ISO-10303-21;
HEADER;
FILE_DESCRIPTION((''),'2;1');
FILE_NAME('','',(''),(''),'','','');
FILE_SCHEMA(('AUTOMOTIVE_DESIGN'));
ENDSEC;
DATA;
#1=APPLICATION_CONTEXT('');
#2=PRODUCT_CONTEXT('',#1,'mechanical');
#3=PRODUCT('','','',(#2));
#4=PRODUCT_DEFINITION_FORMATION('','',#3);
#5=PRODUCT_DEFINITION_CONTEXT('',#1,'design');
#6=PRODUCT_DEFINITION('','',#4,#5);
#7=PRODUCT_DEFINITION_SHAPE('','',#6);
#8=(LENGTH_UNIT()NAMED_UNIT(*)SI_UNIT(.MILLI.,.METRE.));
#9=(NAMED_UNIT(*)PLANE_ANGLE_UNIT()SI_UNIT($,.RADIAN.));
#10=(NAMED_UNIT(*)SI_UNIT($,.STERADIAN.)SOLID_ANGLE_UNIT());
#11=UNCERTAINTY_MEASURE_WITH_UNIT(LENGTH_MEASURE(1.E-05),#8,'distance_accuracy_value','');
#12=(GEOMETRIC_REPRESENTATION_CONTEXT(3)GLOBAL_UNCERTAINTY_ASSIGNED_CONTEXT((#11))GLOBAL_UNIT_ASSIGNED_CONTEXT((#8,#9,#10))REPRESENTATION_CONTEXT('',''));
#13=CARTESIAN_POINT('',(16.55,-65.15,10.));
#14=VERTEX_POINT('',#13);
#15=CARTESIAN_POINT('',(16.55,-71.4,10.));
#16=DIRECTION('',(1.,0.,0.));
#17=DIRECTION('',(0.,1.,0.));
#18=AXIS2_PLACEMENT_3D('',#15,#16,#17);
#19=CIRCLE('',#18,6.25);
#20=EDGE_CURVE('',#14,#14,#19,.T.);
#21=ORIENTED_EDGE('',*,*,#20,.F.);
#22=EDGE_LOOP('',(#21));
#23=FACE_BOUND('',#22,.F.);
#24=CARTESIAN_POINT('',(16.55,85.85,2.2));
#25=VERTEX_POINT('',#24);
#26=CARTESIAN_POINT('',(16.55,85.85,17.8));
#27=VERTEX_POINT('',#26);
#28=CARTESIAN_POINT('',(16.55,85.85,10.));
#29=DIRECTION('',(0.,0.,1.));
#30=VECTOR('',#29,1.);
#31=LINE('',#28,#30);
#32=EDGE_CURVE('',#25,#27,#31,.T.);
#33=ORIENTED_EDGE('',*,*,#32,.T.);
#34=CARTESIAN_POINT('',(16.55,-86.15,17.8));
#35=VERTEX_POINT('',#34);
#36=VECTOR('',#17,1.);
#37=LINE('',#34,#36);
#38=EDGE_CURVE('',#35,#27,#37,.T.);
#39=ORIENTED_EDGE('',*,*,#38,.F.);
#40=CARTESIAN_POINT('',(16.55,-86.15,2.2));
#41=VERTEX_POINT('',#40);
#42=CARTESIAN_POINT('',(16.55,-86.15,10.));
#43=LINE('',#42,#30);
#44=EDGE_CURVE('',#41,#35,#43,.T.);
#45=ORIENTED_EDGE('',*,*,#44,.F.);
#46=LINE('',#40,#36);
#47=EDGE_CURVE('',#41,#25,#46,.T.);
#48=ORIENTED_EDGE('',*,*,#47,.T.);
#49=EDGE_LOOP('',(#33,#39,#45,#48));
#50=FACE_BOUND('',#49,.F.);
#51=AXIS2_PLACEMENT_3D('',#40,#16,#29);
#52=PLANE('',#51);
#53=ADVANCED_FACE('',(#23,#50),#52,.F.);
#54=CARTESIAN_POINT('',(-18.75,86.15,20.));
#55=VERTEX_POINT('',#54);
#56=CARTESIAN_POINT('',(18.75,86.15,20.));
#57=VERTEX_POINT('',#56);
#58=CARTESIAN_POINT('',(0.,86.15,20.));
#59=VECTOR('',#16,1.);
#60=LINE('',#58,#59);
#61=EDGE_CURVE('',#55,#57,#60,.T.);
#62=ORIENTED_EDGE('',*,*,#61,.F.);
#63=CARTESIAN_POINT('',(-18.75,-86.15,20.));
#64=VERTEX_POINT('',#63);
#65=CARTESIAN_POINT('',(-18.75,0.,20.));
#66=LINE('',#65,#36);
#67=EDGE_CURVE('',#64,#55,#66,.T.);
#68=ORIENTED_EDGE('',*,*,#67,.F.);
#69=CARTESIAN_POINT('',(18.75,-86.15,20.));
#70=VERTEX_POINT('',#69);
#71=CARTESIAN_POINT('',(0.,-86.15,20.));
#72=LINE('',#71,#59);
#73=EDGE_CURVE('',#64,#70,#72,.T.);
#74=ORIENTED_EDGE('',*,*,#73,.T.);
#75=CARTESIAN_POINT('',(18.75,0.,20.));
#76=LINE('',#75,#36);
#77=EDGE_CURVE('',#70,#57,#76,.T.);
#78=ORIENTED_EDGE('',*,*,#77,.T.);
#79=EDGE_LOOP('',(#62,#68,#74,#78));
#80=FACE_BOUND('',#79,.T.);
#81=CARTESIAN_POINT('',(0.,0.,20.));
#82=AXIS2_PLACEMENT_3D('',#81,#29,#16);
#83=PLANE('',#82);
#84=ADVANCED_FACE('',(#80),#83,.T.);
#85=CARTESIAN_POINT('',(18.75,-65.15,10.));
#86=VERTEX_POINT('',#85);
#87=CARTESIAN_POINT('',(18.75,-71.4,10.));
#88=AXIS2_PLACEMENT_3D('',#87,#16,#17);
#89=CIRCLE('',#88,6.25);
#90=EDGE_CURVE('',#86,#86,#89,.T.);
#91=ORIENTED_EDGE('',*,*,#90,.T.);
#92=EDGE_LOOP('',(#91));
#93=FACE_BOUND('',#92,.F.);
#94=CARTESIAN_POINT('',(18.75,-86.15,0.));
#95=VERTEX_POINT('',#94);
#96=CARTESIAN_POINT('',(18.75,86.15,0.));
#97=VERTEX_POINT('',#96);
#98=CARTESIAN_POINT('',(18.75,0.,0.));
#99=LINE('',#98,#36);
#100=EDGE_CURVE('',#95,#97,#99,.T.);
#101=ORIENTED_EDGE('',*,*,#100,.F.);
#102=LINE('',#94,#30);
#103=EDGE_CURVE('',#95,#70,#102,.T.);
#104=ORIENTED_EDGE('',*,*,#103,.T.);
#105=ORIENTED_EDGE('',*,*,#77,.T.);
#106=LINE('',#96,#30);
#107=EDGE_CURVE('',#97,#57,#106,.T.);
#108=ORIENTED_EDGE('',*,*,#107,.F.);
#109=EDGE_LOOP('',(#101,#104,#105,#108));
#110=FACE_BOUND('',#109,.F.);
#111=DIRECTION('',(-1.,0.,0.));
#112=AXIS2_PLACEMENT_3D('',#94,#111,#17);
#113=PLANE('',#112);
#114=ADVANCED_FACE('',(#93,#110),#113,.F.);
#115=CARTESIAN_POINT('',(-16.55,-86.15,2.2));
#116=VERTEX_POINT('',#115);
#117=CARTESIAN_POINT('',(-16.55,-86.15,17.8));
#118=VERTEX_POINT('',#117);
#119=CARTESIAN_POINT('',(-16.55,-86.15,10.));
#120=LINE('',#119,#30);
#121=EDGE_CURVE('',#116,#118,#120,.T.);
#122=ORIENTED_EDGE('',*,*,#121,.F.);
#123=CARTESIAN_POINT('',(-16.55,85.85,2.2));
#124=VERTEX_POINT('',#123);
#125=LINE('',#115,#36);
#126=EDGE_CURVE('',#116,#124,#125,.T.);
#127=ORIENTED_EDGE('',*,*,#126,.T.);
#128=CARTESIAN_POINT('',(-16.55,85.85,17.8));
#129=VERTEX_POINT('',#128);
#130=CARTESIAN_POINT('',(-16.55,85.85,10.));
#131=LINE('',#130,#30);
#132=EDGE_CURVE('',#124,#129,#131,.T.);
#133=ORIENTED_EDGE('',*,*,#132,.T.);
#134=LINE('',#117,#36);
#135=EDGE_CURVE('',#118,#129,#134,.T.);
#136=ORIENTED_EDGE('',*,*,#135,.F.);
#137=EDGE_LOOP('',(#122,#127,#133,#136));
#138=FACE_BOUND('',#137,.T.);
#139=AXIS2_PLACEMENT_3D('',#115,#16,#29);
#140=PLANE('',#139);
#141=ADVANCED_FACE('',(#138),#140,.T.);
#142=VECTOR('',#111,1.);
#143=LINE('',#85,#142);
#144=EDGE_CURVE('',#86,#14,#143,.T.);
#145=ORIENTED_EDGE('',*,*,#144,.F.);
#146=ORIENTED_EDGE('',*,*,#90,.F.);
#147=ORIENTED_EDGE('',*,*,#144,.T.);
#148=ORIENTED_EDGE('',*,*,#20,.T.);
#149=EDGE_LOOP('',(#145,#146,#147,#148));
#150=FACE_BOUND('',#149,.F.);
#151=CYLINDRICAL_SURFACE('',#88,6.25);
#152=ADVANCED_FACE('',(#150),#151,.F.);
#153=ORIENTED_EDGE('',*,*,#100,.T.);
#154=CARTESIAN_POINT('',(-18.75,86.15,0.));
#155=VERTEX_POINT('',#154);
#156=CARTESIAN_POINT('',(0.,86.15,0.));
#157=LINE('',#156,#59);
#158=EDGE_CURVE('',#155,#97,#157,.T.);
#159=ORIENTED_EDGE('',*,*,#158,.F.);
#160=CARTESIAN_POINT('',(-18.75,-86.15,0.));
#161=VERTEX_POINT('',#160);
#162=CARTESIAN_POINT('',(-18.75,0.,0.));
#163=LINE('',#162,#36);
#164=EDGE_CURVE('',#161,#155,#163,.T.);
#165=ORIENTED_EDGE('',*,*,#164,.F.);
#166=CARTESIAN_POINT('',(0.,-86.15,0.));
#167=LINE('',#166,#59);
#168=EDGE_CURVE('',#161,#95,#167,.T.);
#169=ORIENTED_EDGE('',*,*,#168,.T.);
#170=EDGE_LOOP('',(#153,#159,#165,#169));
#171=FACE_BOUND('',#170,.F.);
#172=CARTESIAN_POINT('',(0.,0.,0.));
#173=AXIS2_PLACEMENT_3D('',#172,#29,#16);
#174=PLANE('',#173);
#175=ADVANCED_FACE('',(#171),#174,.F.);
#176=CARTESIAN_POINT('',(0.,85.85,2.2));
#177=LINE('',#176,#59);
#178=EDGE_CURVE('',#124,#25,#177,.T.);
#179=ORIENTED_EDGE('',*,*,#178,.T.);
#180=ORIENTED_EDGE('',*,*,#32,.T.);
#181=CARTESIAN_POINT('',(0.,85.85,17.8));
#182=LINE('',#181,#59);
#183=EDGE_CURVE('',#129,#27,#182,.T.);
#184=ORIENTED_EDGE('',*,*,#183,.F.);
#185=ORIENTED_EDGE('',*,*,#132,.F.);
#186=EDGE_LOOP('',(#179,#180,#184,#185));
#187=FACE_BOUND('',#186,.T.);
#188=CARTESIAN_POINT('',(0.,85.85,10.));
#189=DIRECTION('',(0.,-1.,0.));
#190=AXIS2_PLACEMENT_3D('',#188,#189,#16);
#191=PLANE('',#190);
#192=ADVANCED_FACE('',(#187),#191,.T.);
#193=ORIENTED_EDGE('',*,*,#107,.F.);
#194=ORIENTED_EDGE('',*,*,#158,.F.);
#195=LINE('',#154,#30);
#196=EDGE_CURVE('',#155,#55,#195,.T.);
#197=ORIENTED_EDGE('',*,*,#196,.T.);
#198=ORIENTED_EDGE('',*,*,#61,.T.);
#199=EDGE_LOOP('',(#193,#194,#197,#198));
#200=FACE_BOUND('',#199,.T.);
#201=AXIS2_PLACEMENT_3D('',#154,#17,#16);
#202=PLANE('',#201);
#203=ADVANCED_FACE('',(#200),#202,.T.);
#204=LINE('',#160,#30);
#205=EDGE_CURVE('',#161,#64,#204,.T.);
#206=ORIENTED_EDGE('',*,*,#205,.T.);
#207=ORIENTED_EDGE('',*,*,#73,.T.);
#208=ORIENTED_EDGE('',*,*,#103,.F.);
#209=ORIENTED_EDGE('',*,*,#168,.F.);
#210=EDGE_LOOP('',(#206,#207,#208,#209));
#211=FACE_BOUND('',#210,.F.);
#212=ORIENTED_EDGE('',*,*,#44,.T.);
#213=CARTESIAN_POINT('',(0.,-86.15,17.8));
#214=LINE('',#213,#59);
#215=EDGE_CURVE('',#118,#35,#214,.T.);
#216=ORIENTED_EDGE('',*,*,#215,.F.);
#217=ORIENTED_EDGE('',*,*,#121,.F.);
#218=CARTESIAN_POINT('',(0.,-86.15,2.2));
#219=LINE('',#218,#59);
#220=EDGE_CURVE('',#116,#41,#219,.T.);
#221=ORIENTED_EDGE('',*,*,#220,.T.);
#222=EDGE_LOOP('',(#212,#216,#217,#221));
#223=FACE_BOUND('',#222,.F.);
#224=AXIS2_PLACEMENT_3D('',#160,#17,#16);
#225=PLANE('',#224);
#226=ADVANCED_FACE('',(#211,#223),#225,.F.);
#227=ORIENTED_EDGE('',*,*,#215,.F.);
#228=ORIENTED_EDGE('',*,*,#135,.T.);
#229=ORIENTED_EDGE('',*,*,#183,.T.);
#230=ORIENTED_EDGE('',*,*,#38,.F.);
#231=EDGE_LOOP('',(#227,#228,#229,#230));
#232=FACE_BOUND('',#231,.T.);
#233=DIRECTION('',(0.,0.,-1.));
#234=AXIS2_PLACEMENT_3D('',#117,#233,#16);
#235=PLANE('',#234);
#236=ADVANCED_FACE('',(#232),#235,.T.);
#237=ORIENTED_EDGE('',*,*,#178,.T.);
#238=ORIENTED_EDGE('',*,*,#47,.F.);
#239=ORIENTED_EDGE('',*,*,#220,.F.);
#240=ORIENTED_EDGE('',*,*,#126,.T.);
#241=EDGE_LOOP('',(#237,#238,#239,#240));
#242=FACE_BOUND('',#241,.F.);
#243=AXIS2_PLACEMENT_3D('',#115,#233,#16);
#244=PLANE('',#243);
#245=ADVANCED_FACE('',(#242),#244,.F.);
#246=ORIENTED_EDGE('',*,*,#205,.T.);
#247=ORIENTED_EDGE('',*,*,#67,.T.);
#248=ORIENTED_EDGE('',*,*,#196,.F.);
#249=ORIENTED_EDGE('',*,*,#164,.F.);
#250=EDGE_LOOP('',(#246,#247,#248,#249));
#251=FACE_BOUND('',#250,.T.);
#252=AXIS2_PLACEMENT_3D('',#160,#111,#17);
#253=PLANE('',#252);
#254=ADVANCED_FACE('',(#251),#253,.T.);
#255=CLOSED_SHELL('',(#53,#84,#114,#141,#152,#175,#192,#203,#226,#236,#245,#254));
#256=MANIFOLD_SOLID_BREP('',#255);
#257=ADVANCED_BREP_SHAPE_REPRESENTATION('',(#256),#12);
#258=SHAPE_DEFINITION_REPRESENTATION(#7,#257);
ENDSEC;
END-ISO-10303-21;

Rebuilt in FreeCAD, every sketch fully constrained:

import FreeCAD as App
import Part
import Sketcher
from FreeCAD import Vector

doc = App.newDocument("Part")
body = doc.addObject("PartDesign::Body", "Body")

sketch1 = doc.addObject("Sketcher::SketchObject", "Sketch")
body.addObject(sketch1)
sketch1.AttachmentSupport = (doc.XY_Plane, [""])
sketch1.MapMode = "FlatFace"
sketch1.addGeometry([
    Part.LineSegment(Vector(-19, 86, 0), Vector(-19, -86, 0)),
    Part.LineSegment(Vector(-19, -86, 0), Vector(19, -86, 0)),
    Part.LineSegment(Vector(19, -86, 0), Vector(19, 86, 0)),
    Part.LineSegment(Vector(19, 86, 0), Vector(-19, 86, 0)),
], False)
sketch1.addConstraint([
    Sketcher.Constraint("Coincident", 0, 2, 1, 1),
    Sketcher.Constraint("Coincident", 1, 2, 2, 1),
    Sketcher.Constraint("Coincident", 2, 2, 3, 1),
    Sketcher.Constraint("Coincident", 3, 2, 0, 1),
    Sketcher.Constraint("Vertical", 0),
    Sketcher.Constraint("Horizontal", 1),
    Sketcher.Constraint("Vertical", 2),
    Sketcher.Constraint("Horizontal", 3),
    Sketcher.Constraint("Symmetric", 0, 2, 2, 2, -1, 1),
    Sketcher.Constraint("DistanceX", 1, 1, 1, 2, 37.5),
    Sketcher.Constraint("DistanceY", 0, 2, 0, 1, 172.3),
])
pad1 = doc.addObject("PartDesign::Pad", "Pad")
body.addObject(pad1)
pad1.Profile = sketch1
pad1.Length = 20

sketch2 = doc.addObject("Sketcher::SketchObject", "Sketch001")
body.addObject(sketch2)
sketch2.AttachmentSupport = (doc.XZ_Plane, [""])
sketch2.MapMode = "FlatFace"
sketch2.AttachmentOffset = App.Placement(Vector(0, 0, 86.15), App.Rotation())
sketch2.addGeometry([
    Part.LineSegment(Vector(-17, 18, 0), Vector(-17, 2, 0)),
    Part.LineSegment(Vector(-17, 2, 0), Vector(17, 2, 0)),
    Part.LineSegment(Vector(17, 2, 0), Vector(17, 18, 0)),
    Part.LineSegment(Vector(17, 18, 0), Vector(-17, 18, 0)),
], False)
sketch2.addConstraint([
    Sketcher.Constraint("Coincident", 0, 2, 1, 1),
    Sketcher.Constraint("Coincident", 1, 2, 2, 1),
    Sketcher.Constraint("Coincident", 2, 2, 3, 1),
    Sketcher.Constraint("Coincident", 3, 2, 0, 1),
    Sketcher.Constraint("Vertical", 0),
    Sketcher.Constraint("Horizontal", 1),
    Sketcher.Constraint("Vertical", 2),
    Sketcher.Constraint("Horizontal", 3),
    Sketcher.Constraint("DistanceX", 1, 1, 1, 2, 33.1),
    Sketcher.Constraint("DistanceY", 0, 2, 0, 1, 15.6),
    Sketcher.Constraint("DistanceY", -1, 1, 0, 2, 2.2),
    Sketcher.Constraint("DistanceX", 0, 2, -1, 1, 16.55),
])
pocket1 = doc.addObject("PartDesign::Pocket", "Pocket")
body.addObject(pocket1)
pocket1.Profile = sketch2
pocket1.Length = 172

sketch3 = doc.addObject("Sketcher::SketchObject", "Sketch002")
body.addObject(sketch3)
sketch3.AttachmentSupport = (doc.YZ_Plane, [""])
sketch3.MapMode = "FlatFace"
sketch3.AttachmentOffset = App.Placement(Vector(0, 0, 18.75), App.Rotation())
sketch3.addGeometry(Part.Circle(Vector(-71, 10, 0), Vector(0, 0, 1), 6), False)
sketch3.addConstraint([
    Sketcher.Constraint("Diameter", 0, 12.5),
    Sketcher.Constraint("DistanceY", -1, 1, 0, 3, 10.0),
    Sketcher.Constraint("DistanceX", 0, 3, -1, 1, 71.4),
])
pocket2 = doc.addObject("PartDesign::Pocket", "Pocket001")
body.addObject(pocket2)
pocket2.Profile = sketch3
pocket2.Length = 10

doc.recompute()
